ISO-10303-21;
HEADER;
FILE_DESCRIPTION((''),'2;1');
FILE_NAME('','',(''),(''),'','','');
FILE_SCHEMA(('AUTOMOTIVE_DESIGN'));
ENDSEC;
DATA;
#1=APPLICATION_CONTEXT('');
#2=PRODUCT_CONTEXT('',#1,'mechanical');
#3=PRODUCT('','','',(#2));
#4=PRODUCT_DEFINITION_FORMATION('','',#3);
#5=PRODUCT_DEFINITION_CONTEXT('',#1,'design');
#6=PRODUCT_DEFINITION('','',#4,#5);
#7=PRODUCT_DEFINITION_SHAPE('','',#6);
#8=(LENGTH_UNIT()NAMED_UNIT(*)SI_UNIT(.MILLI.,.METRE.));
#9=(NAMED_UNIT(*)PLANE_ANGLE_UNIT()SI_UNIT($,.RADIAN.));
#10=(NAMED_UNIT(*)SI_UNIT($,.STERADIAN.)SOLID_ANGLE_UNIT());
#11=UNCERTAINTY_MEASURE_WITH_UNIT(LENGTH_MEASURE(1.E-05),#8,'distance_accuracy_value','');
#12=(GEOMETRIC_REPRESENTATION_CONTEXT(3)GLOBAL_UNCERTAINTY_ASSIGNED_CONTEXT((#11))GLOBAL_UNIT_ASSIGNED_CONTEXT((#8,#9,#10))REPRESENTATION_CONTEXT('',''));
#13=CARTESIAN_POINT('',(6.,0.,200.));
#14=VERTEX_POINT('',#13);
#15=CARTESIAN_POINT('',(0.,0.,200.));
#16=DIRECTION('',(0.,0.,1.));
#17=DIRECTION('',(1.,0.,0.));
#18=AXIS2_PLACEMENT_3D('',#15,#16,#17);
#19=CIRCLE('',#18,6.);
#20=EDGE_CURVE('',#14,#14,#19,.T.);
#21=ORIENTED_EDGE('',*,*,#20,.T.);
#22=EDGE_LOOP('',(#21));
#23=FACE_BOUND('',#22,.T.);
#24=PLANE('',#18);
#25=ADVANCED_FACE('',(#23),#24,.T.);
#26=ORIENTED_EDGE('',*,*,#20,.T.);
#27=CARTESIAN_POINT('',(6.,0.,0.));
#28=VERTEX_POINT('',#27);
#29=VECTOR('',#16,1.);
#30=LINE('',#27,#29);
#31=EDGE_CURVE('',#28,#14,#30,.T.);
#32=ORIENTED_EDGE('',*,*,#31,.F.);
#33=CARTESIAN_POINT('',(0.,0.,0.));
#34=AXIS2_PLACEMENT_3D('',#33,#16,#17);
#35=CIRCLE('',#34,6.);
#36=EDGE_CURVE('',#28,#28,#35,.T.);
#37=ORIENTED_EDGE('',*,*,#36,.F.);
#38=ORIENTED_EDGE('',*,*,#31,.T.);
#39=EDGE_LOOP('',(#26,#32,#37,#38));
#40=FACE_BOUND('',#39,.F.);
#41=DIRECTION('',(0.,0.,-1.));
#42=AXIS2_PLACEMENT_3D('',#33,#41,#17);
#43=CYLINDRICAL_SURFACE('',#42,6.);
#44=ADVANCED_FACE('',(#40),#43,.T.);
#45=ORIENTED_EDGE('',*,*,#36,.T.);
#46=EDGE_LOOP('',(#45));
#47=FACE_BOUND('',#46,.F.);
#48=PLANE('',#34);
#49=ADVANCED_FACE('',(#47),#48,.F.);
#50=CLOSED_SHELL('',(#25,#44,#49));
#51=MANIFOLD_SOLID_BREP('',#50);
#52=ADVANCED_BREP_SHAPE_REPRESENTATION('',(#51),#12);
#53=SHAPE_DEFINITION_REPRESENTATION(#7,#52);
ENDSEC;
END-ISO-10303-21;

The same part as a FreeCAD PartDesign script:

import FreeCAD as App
import Part
import Sketcher
from FreeCAD import Vector
Q = App.Units.Quantity

doc = App.newDocument("Part")
body = doc.addObject("PartDesign::Body", "Body")

sketch1 = body.newObject("Sketcher::SketchObject", "Sketch")
sketch1.AttachmentSupport = (doc.getObject("XY_Plane"), [""])
sketch1.MapMode = "FlatFace"
sketch1.addGeometry(Part.Circle(Vector(0, 0, 0), Vector(0, 0, 1), 6), False)
sketch1.addConstraint(Sketcher.Constraint("Coincident", 0, 3, -1, 1))
sketch1.addConstraint(Sketcher.Constraint("Diameter", 0, Q("12 mm")))
pad1 = body.newObject("PartDesign::Pad", "Pad")
pad1.Profile = sketch1
pad1.Length = 200

doc.recompute()
